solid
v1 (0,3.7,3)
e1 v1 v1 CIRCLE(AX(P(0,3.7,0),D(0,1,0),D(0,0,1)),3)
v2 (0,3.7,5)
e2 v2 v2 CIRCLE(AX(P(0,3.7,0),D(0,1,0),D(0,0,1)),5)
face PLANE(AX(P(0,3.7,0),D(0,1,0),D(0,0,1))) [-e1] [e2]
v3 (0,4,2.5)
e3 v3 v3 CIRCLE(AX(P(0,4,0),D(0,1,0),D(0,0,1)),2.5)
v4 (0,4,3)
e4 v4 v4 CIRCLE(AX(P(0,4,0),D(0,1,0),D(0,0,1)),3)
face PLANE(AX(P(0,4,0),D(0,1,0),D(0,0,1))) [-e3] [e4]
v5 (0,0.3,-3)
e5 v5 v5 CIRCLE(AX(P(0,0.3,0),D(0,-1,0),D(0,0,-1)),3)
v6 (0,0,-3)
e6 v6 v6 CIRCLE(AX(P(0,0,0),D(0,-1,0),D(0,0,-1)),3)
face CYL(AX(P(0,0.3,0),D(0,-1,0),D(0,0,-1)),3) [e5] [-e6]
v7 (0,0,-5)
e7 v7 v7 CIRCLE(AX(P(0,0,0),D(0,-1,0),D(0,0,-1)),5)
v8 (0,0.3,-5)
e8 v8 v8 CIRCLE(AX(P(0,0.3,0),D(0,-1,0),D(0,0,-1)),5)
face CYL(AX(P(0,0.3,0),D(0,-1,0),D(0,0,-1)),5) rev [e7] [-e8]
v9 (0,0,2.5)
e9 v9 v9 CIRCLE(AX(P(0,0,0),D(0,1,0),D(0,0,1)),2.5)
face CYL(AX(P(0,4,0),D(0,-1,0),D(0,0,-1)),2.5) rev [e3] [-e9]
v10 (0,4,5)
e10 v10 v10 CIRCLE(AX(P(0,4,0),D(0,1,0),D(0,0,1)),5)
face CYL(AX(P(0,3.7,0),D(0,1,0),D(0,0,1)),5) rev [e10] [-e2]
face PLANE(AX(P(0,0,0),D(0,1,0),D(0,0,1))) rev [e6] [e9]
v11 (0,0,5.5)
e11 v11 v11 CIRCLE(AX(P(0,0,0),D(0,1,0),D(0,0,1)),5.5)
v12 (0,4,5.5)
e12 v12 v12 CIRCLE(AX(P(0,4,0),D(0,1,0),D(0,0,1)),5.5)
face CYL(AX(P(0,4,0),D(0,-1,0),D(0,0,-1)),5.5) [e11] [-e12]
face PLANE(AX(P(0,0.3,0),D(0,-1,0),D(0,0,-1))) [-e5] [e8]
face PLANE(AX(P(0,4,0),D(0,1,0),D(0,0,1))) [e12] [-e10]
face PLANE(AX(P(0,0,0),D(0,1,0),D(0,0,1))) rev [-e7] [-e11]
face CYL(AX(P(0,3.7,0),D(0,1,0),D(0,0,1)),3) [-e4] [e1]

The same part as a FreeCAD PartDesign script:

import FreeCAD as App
import Part
import Sketcher

doc = App.newDocument("Part")
body = doc.addObject("PartDesign::Body", "Body")

sketch1 = doc.addObject("Sketcher::SketchObject", "Sketch")
body.addObject(sketch1)
sketch1.AttachmentSupport = (doc.XZ_Plane, [""])
sketch1.MapMode = "FlatFace"
sketch1.addGeometry([
    Part.Circle(App.Vector(0, 0, 0), App.Vector(0, 0, 1), 5.5),
    Part.Circle(App.Vector(0, 0, 0), App.Vector(0, 0, 1), 2.5),
], False)
sketch1.addConstraint([
    Sketcher.Constraint("Coincident", 0, 3, -1, 1),
    Sketcher.Constraint("Coincident", 1, 3, -1, 1),
    Sketcher.Constraint("Diameter", 0, 11.0),
    Sketcher.Constraint("Diameter", 1, 5.0),
])
pad1 = doc.addObject("PartDesign::Pad", "Pad")
body.addObject(pad1)
pad1.Profile = sketch1
pad1.Length = 4
pad1.Reversed = True

sketch2 = doc.addObject("Sketcher::SketchObject", "Sketch001")
body.addObject(sketch2)
sketch2.AttachmentSupport = (doc.XZ_Plane, [""])
sketch2.MapMode = "FlatFace"
sketch2.AttachmentOffset = App.Placement(App.Vector(0, 0, -4), App.Rotation())
sketch2.addGeometry([
    Part.Circle(App.Vector(0, 0, 0), App.Vector(0, 0, 1), 5),
    Part.Circle(App.Vector(0, 0, 0), App.Vector(0, 0, 1), 3),
], False)
sketch2.addConstraint([
    Sketcher.Constraint("Coincident", 0, 3, -1, 1),
    Sketcher.Constraint("Coincident", 1, 3, -1, 1),
    Sketcher.Constraint("Diameter", 0, 10.0),
    Sketcher.Constraint("Diameter", 1, 6.0),
])
pocket1 = doc.addObject("PartDesign::Pocket", "Pocket")
body.addObject(pocket1)
pocket1.Profile = sketch2
pocket1.Length = 0.3
pocket1.Reversed = True

sketch3 = doc.addObject("Sketcher::SketchObject", "Sketch002")
body.addObject(sketch3)
sketch3.AttachmentSupport = (doc.XZ_Plane, [""])
sketch3.MapMode = "FlatFace"
sketch3.AttachmentOffset = App.Placement(App.Vector(0, 0, -0.3), App.Rotation())
sketch3.addGeometry([
    Part.Circle(App.Vector(0, 0, 0), App.Vector(0, 0, 1), 5),
    Part.Circle(App.Vector(0, 0, 0), App.Vector(0, 0, 1), 3),
], False)
sketch3.addConstraint([
    Sketcher.Constraint("Coincident", 0, 3, -1, 1),
    Sketcher.Constraint("Coincident", 1, 3, -1, 1),
    Sketcher.Constraint("Diameter", 0, 10.0),
    Sketcher.Constraint("Diameter", 1, 6.0),
])
pocket2 = doc.addObject("PartDesign::Pocket", "Pocket001")
body.addObject(pocket2)
pocket2.Profile = sketch3
pocket2.Length = 0.3
pocket2.Reversed = True

doc.recompute()
